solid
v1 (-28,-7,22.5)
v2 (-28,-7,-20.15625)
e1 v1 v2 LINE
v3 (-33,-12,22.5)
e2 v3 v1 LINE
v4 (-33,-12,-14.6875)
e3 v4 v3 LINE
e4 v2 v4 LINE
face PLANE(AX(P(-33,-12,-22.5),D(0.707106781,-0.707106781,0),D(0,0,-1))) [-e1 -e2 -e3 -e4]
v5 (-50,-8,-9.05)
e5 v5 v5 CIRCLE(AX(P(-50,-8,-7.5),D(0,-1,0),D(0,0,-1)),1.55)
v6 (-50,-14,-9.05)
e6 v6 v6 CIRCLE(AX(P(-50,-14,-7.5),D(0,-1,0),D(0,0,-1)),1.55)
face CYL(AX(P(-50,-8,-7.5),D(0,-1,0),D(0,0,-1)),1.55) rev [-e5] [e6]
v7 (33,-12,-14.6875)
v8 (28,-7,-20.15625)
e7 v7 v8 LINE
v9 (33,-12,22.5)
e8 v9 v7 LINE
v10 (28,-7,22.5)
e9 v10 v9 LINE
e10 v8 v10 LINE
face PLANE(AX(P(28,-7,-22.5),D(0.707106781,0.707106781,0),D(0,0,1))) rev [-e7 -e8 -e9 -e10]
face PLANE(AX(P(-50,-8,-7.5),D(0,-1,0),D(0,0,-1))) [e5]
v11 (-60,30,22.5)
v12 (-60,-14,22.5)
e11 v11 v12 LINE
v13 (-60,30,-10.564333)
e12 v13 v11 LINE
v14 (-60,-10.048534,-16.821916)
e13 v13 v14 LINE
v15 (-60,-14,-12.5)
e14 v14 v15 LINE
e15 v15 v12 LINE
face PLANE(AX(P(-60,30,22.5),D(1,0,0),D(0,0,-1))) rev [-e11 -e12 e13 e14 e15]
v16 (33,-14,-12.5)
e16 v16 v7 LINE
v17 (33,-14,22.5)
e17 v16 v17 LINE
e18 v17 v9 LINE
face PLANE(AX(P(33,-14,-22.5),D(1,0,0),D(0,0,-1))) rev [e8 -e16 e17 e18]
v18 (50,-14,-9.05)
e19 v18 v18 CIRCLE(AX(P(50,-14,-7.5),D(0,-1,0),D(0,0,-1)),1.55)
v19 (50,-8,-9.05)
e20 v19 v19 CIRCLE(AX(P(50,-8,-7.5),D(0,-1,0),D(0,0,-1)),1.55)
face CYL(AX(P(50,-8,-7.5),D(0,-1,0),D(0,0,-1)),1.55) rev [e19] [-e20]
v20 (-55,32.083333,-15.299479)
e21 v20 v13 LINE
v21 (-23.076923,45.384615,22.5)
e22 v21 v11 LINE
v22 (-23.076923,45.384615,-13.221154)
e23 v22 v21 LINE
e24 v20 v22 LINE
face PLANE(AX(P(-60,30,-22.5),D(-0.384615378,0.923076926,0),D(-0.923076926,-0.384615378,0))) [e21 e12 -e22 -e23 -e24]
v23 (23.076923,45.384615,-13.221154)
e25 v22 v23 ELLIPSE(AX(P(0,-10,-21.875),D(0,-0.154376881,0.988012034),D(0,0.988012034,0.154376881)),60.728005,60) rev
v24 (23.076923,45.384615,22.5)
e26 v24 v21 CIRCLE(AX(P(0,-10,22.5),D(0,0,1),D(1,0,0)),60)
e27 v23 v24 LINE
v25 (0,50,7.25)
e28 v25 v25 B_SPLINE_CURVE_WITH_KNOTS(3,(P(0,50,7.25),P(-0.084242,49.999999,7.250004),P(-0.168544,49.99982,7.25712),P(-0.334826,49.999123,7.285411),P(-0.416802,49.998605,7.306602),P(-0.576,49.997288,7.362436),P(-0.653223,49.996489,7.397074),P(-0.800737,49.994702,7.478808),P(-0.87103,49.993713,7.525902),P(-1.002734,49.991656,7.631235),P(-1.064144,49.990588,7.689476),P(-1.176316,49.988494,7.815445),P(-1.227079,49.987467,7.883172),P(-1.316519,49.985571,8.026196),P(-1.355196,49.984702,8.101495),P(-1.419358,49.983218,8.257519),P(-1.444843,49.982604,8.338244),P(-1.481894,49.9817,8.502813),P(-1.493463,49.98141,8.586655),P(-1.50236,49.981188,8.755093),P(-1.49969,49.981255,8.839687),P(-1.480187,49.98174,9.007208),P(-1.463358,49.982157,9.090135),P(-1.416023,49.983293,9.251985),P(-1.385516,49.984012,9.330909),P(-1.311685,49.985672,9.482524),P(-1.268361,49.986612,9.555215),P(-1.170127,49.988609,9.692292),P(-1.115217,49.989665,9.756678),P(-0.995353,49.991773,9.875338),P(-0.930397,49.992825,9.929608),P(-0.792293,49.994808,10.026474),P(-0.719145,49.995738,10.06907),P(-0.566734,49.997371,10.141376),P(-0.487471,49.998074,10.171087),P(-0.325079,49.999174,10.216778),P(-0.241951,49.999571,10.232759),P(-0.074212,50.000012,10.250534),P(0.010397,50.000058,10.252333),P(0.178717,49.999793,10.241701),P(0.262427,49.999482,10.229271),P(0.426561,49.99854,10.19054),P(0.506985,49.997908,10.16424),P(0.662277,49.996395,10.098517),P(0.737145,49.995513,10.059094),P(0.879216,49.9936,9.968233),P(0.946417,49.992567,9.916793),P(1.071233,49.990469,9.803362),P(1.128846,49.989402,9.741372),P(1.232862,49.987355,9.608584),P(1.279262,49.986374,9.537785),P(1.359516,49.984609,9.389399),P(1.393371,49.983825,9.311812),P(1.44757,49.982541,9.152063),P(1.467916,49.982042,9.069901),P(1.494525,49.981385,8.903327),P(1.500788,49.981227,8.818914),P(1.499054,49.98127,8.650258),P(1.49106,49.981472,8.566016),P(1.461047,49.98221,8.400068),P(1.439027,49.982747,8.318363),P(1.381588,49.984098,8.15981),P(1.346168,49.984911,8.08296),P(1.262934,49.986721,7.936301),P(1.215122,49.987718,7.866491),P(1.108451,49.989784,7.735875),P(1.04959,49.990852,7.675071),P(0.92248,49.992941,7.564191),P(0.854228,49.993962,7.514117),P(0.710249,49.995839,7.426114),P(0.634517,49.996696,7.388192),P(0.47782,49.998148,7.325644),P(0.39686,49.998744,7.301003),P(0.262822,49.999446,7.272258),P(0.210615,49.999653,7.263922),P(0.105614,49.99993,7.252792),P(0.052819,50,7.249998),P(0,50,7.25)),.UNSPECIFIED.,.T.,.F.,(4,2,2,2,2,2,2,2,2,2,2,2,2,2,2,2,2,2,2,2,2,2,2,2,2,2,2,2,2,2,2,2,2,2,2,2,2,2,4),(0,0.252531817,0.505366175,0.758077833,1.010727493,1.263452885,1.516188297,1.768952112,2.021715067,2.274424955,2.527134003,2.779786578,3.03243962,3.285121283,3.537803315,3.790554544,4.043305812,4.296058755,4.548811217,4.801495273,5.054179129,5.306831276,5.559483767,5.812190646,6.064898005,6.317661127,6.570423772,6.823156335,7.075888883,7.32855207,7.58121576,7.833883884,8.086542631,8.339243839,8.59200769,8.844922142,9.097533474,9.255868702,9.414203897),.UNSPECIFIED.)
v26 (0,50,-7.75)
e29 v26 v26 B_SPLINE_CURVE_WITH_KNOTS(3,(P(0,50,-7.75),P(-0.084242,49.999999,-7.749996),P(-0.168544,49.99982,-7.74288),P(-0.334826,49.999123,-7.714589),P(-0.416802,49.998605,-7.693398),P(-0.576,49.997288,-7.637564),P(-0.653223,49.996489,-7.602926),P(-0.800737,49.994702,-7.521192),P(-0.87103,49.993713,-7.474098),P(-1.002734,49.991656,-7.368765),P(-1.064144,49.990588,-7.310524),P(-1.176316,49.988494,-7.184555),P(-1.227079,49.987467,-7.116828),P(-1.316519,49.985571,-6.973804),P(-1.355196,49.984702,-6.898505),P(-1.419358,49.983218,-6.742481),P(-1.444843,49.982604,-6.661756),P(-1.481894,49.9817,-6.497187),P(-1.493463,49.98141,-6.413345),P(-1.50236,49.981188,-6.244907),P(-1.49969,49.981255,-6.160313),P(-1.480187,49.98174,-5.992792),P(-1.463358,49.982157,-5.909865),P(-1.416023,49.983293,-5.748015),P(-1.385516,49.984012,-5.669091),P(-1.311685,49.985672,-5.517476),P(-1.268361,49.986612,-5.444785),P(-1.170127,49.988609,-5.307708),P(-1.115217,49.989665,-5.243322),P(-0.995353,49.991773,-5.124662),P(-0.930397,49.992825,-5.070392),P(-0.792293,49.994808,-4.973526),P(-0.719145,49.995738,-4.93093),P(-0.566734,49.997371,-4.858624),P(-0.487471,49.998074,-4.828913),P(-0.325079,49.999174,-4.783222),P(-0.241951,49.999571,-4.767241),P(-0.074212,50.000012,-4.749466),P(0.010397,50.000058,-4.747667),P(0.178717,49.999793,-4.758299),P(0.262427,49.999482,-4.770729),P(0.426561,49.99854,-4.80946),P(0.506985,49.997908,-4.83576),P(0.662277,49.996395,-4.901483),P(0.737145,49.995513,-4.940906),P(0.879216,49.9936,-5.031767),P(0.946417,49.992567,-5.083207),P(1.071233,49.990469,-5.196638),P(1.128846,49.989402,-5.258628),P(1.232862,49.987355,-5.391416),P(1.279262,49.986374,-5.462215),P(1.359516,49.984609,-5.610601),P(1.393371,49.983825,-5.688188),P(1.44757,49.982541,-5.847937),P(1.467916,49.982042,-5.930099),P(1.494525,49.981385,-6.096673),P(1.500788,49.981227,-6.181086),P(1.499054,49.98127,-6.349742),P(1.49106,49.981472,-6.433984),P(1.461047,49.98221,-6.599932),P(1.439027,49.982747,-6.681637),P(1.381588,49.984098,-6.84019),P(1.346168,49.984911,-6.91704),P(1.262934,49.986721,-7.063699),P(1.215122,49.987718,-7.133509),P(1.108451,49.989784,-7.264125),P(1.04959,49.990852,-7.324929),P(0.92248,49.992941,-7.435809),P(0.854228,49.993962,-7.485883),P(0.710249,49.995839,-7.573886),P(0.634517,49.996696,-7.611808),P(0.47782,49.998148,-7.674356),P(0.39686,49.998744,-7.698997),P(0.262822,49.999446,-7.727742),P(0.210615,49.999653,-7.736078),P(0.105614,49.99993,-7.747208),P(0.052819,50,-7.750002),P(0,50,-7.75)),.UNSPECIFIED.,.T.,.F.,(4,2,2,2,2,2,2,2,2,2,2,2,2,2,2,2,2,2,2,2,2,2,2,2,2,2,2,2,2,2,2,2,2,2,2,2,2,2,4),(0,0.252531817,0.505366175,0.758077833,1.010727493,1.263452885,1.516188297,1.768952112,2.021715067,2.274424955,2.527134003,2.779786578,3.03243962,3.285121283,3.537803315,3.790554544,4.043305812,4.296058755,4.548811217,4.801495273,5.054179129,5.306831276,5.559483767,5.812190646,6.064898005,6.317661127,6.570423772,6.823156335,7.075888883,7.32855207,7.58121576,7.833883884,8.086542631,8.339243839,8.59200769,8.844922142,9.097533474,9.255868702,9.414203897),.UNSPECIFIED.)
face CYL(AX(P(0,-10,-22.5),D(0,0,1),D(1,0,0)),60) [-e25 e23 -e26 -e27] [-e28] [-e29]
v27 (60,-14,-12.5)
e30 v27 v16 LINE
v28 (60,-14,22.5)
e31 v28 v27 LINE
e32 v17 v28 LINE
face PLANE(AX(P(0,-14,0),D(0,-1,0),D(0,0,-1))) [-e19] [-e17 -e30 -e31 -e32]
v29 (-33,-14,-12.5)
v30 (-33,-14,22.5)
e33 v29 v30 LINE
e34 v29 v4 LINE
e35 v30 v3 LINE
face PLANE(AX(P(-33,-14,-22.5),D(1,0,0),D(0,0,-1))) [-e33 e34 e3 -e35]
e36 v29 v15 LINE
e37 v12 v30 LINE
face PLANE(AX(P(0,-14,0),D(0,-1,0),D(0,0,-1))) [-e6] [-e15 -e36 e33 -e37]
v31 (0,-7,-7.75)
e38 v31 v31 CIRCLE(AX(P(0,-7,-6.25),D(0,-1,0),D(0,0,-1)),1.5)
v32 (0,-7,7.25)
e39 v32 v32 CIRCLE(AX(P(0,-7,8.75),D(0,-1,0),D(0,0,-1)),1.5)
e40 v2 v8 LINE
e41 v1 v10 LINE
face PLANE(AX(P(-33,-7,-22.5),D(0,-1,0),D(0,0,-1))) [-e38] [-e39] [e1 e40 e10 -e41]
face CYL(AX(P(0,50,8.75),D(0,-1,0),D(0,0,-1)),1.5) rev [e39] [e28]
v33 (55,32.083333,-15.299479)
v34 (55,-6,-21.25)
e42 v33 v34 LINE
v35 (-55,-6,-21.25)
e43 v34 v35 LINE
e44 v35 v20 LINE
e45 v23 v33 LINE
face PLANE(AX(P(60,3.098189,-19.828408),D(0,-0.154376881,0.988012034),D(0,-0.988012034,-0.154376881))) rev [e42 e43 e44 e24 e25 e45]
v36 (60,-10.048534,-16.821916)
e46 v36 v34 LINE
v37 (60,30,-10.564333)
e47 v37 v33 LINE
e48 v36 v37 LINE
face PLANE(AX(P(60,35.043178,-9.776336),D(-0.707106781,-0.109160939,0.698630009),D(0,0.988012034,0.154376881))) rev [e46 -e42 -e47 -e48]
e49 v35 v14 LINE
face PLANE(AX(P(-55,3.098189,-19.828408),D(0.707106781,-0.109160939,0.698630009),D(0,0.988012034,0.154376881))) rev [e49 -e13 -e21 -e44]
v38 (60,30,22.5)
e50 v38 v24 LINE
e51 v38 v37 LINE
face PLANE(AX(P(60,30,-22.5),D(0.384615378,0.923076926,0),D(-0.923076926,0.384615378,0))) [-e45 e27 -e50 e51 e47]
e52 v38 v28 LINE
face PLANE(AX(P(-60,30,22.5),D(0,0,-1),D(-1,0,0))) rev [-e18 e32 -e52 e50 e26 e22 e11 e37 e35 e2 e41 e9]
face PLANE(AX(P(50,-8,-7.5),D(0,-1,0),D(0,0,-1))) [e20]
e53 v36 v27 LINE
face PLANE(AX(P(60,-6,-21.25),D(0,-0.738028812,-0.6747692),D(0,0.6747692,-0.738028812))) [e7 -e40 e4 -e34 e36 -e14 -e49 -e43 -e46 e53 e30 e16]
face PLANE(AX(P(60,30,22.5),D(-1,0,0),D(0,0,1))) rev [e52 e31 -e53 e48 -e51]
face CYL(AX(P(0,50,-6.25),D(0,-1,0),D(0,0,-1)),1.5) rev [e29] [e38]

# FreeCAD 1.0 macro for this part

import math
import FreeCAD as App
import Part
import Sketcher

V = App.Vector
Q = App.Units.Quantity


def edges_at(feature, points):
    """Names of the edges that pass closest to the given points."""
    edges = feature.Shape.Edges
    near = lambda p: min(range(len(edges)), key=lambda i: edges[i].distToShape(Part.Vertex(*p))[0])
    return sorted({f"Edge{near(p) + 1}" for p in points})

doc = App.newDocument("Part")
body = doc.addObject("PartDesign::Body", "Body")

sketch1 = body.newObject("Sketcher::SketchObject", "Sketch")
sketch1.AttachmentSupport = (doc.getObject("XZ_Plane"), [""])
sketch1.MapMode = "FlatFace"
sketch1.addGeometry(Part.LineSegment(V(-60, -22.5, 0), V(-60, 22.5, 0)), False)
sketch1.addGeometry(Part.LineSegment(V(-60, 22.5, 0), V(60, 22.5, 0)), False)
sketch1.addGeometry(Part.LineSegment(V(60, 22.5, 0), V(60, -22.5, 0)), False)
sketch1.addGeometry(Part.LineSegment(V(60, -22.5, 0), V(-60, -22.5, 0)), False)
sketch1.addGeometry(Part.Circle(V(-50, 7.5, 0), V(0, 0, 1), 1.55), False)
sketch1.addGeometry(Part.Circle(V(50, 7.5, 0), V(0, 0, 1), 1.55), False)
sketch1.addConstraint(Sketcher.Constraint("Coincident", 0, 2, 1, 1))
sketch1.addConstraint(Sketcher.Constraint("Coincident", 1, 2, 2, 1))
sketch1.addConstraint(Sketcher.Constraint("Coincident", 2, 2, 3, 1))
sketch1.addConstraint(Sketcher.Constraint("Coincident", 3, 2, 0, 1))
sketch1.addConstraint(Sketcher.Constraint("Vertical", 0))
sketch1.addConstraint(Sketcher.Constraint("Horizontal", 1))
sketch1.addConstraint(Sketcher.Constraint("Vertical", 2))
sketch1.addConstraint(Sketcher.Constraint("Horizontal", 3))
sketch1.addConstraint(Sketcher.Constraint("Equal", 4, 5))
sketch1.addConstraint(Sketcher.Constraint("Symmetric", 0, 2, 2, 2, -1, 1))
sketch1.addConstraint(Sketcher.Constraint("Symmetric", 4, 3, 5, 3, -2))
sketch1.addConstraint(Sketcher.Constraint("Diameter", 4, Q("3.1 mm")))
sketch1.addConstraint(Sketcher.Constraint("DistanceX", 1, 1, 1, 2, Q("120 mm")))
sketch1.addConstraint(Sketcher.Constraint("DistanceY", 0, 1, 0, 2, Q("45 mm")))
sketch1.addConstraint(Sketcher.Constraint("DistanceX", 4, 3, -1, 1, Q("50 mm")))
sketch1.addConstraint(Sketcher.Constraint("DistanceY", 4, 3, 0, 2, Q("15 mm")))
pad1 = body.newObject("PartDesign::Pad", "Pad")
pad1.Profile = sketch1
pad1.Length = 30
pad1.Reversed = True

sketch2 = body.newObject("Sketcher::SketchObject", "Sketch001")
sketch2.AttachmentSupport = (doc.getObject("XZ_Plane"), [""])
sketch2.MapMode = "FlatFace"
sketch2.AttachmentOffset = App.Placement(V(0, 0, -30), App.Rotation())
sketch2.addGeometry(Part.LineSegment(V(-60, -22.5, 0), V(-60, 22.5, 0)), False)
sketch2.addGeometry(Part.LineSegment(V(-60, 22.5, 0), V(60, 22.5, 0)), False)
sketch2.addGeometry(Part.LineSegment(V(60, 22.5, 0), V(60, -22.5, 0)), False)
sketch2.addGeometry(Part.LineSegment(V(60, -22.5, 0), V(-60, -22.5, 0)), False)
sketch2.addConstraint(Sketcher.Constraint("Coincident", 0, 2, 1, 1))
sketch2.addConstraint(Sketcher.Constraint("Coincident", 1, 2, 2, 1))
sketch2.addConstraint(Sketcher.Constraint("Coincident", 2, 2, 3, 1))
sketch2.addConstraint(Sketcher.Constraint("Coincident", 3, 2, 0, 1))
sketch2.addConstraint(Sketcher.Constraint("Vertical", 0))
sketch2.addConstraint(Sketcher.Constraint("Horizontal", 1))
sketch2.addConstraint(Sketcher.Constraint("Vertical", 2))
sketch2.addConstraint(Sketcher.Constraint("Horizontal", 3))
sketch2.addConstraint(Sketcher.Constraint("Symmetric", 0, 2, 2, 2, -1, 1))
sketch2.addConstraint(Sketcher.Constraint("DistanceX", 1, 1, 1, 2, Q("120 mm")))
sketch2.addConstraint(Sketcher.Constraint("DistanceY", 0, 1, 0, 2, Q("45 mm")))
pad2 = body.newObject("PartDesign::Pad", "Pad001")
pad2.Profile = sketch2
pad2.Length = 44

sketch3 = body.newObject("Sketcher::SketchObject", "Sketch002")
sketch3.AttachmentSupport = (doc.getObject("XY_Plane"), [""])
sketch3.MapMode = "FlatFace"
sketch3.AttachmentOffset = App.Placement(V(0, 0, 22.5), App.Rotation())
sketch3.addGeometry(Part.LineSegment(V(-23.076923, 45.384615, 0), V(-60, 30, 0)), False)
sketch3.addGeometry(Part.LineSegment(V(-60, 30, 0), V(60, 30, 0)), False)
sketch3.addGeometry(Part.LineSegment(V(60, 30, 0), V(23.076923, 45.384615, 0)), False)
sketch3.addGeometry(Part.ArcOfCircle(Part.Circle(V(0, -10, 0), V(0, 0, 1), 60), math.radians(67.380135), math.radians(112.619865)), False)
sketch3.addConstraint(Sketcher.Constraint("Coincident", 0, 2, 1, 1))
sketch3.addConstraint(Sketcher.Constraint("Coincident", 1, 2, 2, 1))
sketch3.addConstraint(Sketcher.Constraint("Tangent", 2, 2, 3, 1))
sketch3.addConstraint(Sketcher.Constraint("Tangent", 3, 2, 0, 1))
sketch3.addConstraint(Sketcher.Constraint("Horizontal", 1))
sketch3.addConstraint(Sketcher.Constraint("Symmetric", 2, 2, 3, 2, -2))
sketch3.addConstraint(Sketcher.Constraint("Radius", 3, Q("60 mm")))
sketch3.addConstraint(Sketcher.Constraint("DistanceX", 1, 1, 1, 2, Q("120 mm")))
sketch3.addConstraint(Sketcher.Constraint("Distance", 0, Q("40 mm")))
sketch3.addConstraint(Sketcher.Constraint("DistanceY", 3, 3, -1, 1, Q("10 mm")))
pad3 = body.newObject("PartDesign::Pad", "Pad002")
pad3.Profile = sketch3
pad3.Length = 45
pad3.Reversed = True

sketch4 = body.newObject("Sketcher::SketchObject", "Sketch003")
sketch4.AttachmentSupport = (doc.getObject("XZ_Plane"), [""])
sketch4.MapMode = "FlatFace"
sketch4.AttachmentOffset = App.Placement(V(0, 0, 14), App.Rotation())
sketch4.addGeometry(Part.Circle(V(-50, -7.5, 0), V(0, 0, 1), 1.55), False)
sketch4.addGeometry(Part.Circle(V(50, -7.5, 0), V(0, 0, 1), 1.55), False)
sketch4.addConstraint(Sketcher.Constraint("Equal", 0, 1))
sketch4.addConstraint(Sketcher.Constraint("Symmetric", 0, 3, 1, 3, -2))
sketch4.addConstraint(Sketcher.Constraint("Diameter", 0, Q("3.1 mm")))
sketch4.addConstraint(Sketcher.Constraint("DistanceX", 0, 3, -1, 1, Q("50 mm")))
sketch4.addConstraint(Sketcher.Constraint("DistanceY", 0, 3, -1, 1, Q("7.5 mm")))
pocket1 = body.newObject("PartDesign::Pocket", "Pocket")
pocket1.Profile = sketch4
pocket1.Length = 6

sketch5 = body.newObject("Sketcher::SketchObject", "Sketch004")
sketch5.AttachmentSupport = (doc.getObject("YZ_Plane"), [""])
sketch5.MapMode = "FlatFace"
sketch5.AttachmentOffset = App.Placement(V(0, 0, -60), App.Rotation())
sketch5.addGeometry(Part.LineSegment(V(30, -15.625, 0), V(50, -12.5, 0)), False)
sketch5.addGeometry(Part.LineSegment(V(50, -12.5, 0), V(50, -22.5, 0)), False)
sketch5.addGeometry(Part.LineSegment(V(50, -22.5, 0), V(-14, -22.5, 0)), False)
sketch5.addGeometry(Part.LineSegment(V(-14, -22.5, 0), V(30, -15.625, 0)), False)
sketch5.addConstraint(Sketcher.Constraint("Coincident", 0, 2, 1, 1))
sketch5.addConstraint(Sketcher.Constraint("Coincident", 1, 2, 2, 1))
sketch5.addConstraint(Sketcher.Constraint("Coincident", 2, 2, 3, 1))
sketch5.addConstraint(Sketcher.Constraint("Coincident", 3, 2, 0, 1))
sketch5.addConstraint(Sketcher.Constraint("Vertical", 1))
sketch5.addConstraint(Sketcher.Constraint("Horizontal", 2))
sketch5.addConstraint(Sketcher.Constraint("Parallel", 0, 3))
sketch5.addConstraint(Sketcher.Constraint("DistanceX", 2, 2, 2, 1, Q("64 mm")))
sketch5.addConstraint(Sketcher.Constraint("DistanceY", 1, 2, 1, 1, Q("10 mm")))
sketch5.addConstraint(Sketcher.Constraint("DistanceX", -1, 1, 0, 2, Q("50 mm")))
sketch5.addConstraint(Sketcher.Constraint("DistanceX", -1, 1, 3, 2, Q("30 mm")))
sketch5.addConstraint(Sketcher.Constraint("DistanceY", 0, 2, -1, 1, Q("12.5 mm")))
pocket2 = body.newObject("PartDesign::Pocket", "Pocket001")
pocket2.Profile = sketch5
pocket2.Type = "ThroughAll"
pocket2.Reversed = True
doc.recompute()

chamfer = body.newObject("PartDesign::Chamfer", "Chamfer")
chamfer.Base = (pocket2, edges_at(pocket2, [(60, 8, -19.062), (-60, 8, -19.062)]))
chamfer.Size = 5

sketch6 = body.newObject("Sketcher::SketchObject", "Sketch005")
sketch6.AttachmentSupport = (doc.getObject("XY_Plane"), [""])
sketch6.MapMode = "FlatFace"
sketch6.AttachmentOffset = App.Placement(V(0, 0, 22.5), App.Rotation())
sketch6.addGeometry(Part.LineSegment(V(-33, -7, 0), V(-33, -14, 0)), False)
sketch6.addGeometry(Part.LineSegment(V(-33, -14, 0), V(33, -14, 0)), False)
sketch6.addGeometry(Part.LineSegment(V(33, -14, 0), V(33, -7, 0)), False)
sketch6.addGeometry(Part.LineSegment(V(33, -7, 0), V(-33, -7, 0)), False)
sketch6.addConstraint(Sketcher.Constraint("Coincident", 0, 2, 1, 1))
sketch6.addConstraint(Sketcher.Constraint("Coincident", 1, 2, 2, 1))
sketch6.addConstraint(Sketcher.Constraint("Coincident", 2, 2, 3, 1))
sketch6.addConstraint(Sketcher.Constraint("Coincident", 3, 2, 0, 1))
sketch6.addConstraint(Sketcher.Constraint("Vertical", 0))
sketch6.addConstraint(Sketcher.Constraint("Horizontal", 1))
sketch6.addConstraint(Sketcher.Constraint("Vertical", 2))
sketch6.addConstraint(Sketcher.Constraint("Horizontal", 3))
sketch6.addConstraint(Sketcher.Constraint("DistanceX", 1, 1, 1, 2, Q("66 mm")))
sketch6.addConstraint(Sketcher.Constraint("DistanceY", 0, 2, 0, 1, Q("7 mm")))
sketch6.addConstraint(Sketcher.Constraint("DistanceX", 0, 2, -1, 1, Q("33 mm")))
sketch6.addConstraint(Sketcher.Constraint("DistanceY", 0, 2, -1, 1, Q("14 mm")))
pocket3 = body.newObject("PartDesign::Pocket", "Pocket002")
pocket3.Profile = sketch6
pocket3.Type = "ThroughAll"
doc.recompute()

chamfer2 = body.newObject("PartDesign::Chamfer", "Chamfer001")
chamfer2.Base = (pocket3, edges_at(pocket3, [(-33, -7, 0.547), (33, -7, 0.547)]))
chamfer2.Size = 5

sketch7 = body.newObject("Sketcher::SketchObject", "Sketch006")
sketch7.AttachmentSupport = (doc.getObject("YZ_Plane"), [""])
sketch7.MapMode = "FlatFace"
sketch7.AttachmentOffset = App.Placement(V(0, 0, -60), App.Rotation())
sketch7.addGeometry(Part.LineSegment(V(-14, -12.5, 0), V(-6, -21.25, 0)), False)
sketch7.addGeometry(Part.LineSegment(V(-6, -21.25, 0), V(-14, -22.5, 0)), False)
sketch7.addGeometry(Part.LineSegment(V(-14, -22.5, 0), V(-14, -12.5, 0)), False)
sketch7.addConstraint(Sketcher.Constraint("Coincident", 0, 2, 1, 1))
sketch7.addConstraint(Sketcher.Constraint("Coincident", 1, 2, 2, 1))
sketch7.addConstraint(Sketcher.Constraint("Coincident", 2, 2, 0, 1))
sketch7.addConstraint(Sketcher.Constraint("Vertical", 2))
sketch7.addConstraint(Sketcher.Constraint("DistanceY", 2, 1, 2, 2, Q("10 mm")))
sketch7.addConstraint(Sketcher.Constraint("DistanceX", 0, 2, -1, 1, Q("6 mm")))
sketch7.addConstraint(Sketcher.Constraint("DistanceX", 1, 2, -1, 1, Q("14 mm")))
sketch7.addConstraint(Sketcher.Constraint("DistanceY", 1, 2, -1, 1, Q("22.5 mm")))
sketch7.addConstraint(Sketcher.Constraint("DistanceY", 0, 2, -1, 1, Q("21.25 mm")))
pocket4 = body.newObject("PartDesign::Pocket", "Pocket003")
pocket4.Profile = sketch7
pocket4.Type = "ThroughAll"
pocket4.Reversed = True

sketch8 = body.newObject("Sketcher::SketchObject", "Sketch007")
sketch8.AttachmentSupport = (doc.getObject("XZ_Plane"), [""])
sketch8.MapMode = "FlatFace"
sketch8.AttachmentOffset = App.Placement(V(0, 0, 7), App.Rotation())
sketch8.addGeometry(Part.Circle(V(0, -6.25, 0), V(0, 0, 1), 1.5), False)
sketch8.addGeometry(Part.Circle(V(0, 8.75, 0), V(0, 0, 1), 1.5), False)
sketch8.addConstraint(Sketcher.Constraint("Equal", 0, 1))
sketch8.addConstraint(Sketcher.Constraint("PointOnObject", 0, 3, -2))
sketch8.addConstraint(Sketcher.Constraint("PointOnObject", 1, 3, -2))
sketch8.addConstraint(Sketcher.Constraint("Diameter", 0, Q("3 mm")))
sketch8.addConstraint(Sketcher.Constraint("DistanceY", 0, 3, 1, 3, Q("15 mm")))
sketch8.addConstraint(Sketcher.Constraint("DistanceY", 0, 3, -1, 1, Q("6.25 mm")))
pocket5 = body.newObject("PartDesign::Pocket", "Pocket004")
pocket5.Profile = sketch8
pocket5.Type = "ThroughAll"

doc.recompute()
